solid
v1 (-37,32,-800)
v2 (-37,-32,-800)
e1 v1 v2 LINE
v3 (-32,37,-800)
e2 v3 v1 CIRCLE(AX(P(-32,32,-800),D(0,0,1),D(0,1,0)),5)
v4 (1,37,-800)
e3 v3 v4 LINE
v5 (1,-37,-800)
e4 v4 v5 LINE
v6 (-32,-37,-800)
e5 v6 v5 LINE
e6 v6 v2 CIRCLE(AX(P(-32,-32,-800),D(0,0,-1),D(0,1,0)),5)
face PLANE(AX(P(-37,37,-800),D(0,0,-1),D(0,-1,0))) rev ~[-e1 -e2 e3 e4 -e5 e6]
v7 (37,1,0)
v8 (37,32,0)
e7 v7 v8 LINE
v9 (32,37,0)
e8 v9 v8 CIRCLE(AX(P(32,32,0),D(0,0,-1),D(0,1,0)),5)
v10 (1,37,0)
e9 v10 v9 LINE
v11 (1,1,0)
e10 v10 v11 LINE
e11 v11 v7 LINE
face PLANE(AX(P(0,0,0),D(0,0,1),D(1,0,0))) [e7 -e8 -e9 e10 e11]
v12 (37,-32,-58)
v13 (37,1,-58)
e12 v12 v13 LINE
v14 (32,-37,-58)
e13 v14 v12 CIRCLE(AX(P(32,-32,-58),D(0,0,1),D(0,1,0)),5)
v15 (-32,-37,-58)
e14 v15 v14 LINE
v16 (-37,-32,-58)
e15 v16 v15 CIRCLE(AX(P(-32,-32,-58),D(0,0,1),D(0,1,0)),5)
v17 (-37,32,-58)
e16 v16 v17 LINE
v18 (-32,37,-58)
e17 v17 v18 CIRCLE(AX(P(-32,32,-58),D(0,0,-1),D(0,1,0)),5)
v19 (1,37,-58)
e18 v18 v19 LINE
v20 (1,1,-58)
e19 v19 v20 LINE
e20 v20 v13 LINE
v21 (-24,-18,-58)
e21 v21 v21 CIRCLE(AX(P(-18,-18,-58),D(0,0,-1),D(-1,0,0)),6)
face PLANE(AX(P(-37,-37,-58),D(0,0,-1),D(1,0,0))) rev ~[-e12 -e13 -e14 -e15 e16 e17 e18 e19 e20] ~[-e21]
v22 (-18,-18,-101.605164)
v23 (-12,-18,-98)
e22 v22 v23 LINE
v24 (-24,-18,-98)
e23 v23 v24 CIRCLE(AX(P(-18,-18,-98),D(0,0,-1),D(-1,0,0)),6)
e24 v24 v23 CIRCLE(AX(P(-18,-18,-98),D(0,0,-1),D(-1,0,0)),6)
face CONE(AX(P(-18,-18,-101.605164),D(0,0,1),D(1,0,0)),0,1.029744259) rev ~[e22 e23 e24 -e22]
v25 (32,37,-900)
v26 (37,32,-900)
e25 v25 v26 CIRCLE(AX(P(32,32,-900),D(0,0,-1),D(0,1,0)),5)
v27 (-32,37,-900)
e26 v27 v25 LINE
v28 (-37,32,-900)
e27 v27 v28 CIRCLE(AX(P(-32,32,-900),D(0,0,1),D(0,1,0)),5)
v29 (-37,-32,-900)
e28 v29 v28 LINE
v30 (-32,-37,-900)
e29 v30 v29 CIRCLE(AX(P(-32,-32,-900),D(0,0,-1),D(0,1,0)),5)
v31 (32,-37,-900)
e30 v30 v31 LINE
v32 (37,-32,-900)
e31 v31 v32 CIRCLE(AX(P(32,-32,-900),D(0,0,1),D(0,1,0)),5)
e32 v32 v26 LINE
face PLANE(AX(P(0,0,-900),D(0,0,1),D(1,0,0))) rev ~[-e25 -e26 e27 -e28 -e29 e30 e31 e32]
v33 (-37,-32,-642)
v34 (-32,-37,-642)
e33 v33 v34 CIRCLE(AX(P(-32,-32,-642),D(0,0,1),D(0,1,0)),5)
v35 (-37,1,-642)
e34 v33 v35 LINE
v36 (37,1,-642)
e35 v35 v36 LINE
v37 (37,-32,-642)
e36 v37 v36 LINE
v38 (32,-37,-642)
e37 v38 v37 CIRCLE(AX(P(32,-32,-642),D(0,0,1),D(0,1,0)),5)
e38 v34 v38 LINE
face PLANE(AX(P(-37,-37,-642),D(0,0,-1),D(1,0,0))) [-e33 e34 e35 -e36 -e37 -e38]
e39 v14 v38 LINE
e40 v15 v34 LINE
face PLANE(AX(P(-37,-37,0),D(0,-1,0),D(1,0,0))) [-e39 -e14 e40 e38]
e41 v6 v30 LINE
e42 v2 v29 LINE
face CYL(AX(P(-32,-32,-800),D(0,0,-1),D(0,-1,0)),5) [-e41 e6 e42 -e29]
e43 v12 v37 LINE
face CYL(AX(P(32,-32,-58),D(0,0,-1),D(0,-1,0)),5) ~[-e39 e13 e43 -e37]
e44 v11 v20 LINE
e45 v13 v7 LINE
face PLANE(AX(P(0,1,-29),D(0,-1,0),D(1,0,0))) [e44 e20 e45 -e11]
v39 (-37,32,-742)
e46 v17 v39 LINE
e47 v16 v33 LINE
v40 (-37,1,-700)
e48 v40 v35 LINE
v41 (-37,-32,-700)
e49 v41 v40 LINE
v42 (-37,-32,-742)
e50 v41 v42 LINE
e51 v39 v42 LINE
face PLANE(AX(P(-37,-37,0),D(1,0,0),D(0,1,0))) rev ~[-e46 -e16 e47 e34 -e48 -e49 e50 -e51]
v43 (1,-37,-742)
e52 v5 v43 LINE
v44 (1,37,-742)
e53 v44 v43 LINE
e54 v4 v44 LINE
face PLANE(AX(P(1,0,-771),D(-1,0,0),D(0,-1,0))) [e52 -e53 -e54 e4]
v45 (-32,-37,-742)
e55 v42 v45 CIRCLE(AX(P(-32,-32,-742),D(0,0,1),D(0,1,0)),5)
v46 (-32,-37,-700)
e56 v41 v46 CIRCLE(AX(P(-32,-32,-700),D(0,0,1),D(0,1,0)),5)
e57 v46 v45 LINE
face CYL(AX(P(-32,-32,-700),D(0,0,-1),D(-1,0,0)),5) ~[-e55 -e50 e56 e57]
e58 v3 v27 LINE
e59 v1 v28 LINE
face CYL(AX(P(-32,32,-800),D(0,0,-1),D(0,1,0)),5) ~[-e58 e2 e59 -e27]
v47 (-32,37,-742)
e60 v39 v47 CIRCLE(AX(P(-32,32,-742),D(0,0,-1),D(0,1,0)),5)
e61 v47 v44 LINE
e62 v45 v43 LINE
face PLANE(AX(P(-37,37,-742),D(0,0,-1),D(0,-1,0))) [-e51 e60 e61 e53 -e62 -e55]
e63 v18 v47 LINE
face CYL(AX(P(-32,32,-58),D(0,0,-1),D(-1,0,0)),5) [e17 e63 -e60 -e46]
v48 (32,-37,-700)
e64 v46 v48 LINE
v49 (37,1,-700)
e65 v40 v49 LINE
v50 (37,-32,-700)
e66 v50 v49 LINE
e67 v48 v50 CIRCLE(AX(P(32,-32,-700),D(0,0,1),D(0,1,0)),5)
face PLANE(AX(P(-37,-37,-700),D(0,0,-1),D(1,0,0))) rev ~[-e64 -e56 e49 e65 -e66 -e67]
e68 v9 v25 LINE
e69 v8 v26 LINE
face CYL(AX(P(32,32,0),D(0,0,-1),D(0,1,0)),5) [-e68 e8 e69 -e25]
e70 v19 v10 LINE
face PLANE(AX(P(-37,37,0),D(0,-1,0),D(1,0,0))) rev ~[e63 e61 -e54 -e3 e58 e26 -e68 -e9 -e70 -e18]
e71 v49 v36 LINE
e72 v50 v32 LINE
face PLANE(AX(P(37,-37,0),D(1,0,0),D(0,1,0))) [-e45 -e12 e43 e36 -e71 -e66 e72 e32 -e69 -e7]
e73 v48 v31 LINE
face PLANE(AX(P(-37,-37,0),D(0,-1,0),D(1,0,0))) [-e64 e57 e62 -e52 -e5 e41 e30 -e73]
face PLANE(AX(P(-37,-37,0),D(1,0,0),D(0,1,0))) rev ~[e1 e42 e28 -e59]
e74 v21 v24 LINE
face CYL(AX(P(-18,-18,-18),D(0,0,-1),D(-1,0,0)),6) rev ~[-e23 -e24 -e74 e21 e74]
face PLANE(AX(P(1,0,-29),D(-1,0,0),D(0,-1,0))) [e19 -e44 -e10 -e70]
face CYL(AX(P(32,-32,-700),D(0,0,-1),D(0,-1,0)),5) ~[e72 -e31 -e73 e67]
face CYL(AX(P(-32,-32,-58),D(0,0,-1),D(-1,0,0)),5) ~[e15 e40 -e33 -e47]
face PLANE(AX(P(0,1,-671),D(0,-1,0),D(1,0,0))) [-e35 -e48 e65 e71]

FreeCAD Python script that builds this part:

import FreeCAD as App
import Part
import Sketcher
from FreeCAD import Vector
Q = App.Units.Quantity


def edges_at(feature, points):
    """Names of the edges that pass closest to the given points."""
    edges = feature.Shape.Edges
    near = lambda p: min(range(len(edges)), key=lambda i: edges[i].distToShape(Part.Vertex(*p))[0])
    return sorted({f"Edge{near(p) + 1}" for p in points})


def add_polygon(sketch, points):
    """Adds a closed chain of lines whose ends are joined by coincident constraints."""
    first, n = sketch.GeometryCount, len(points)
    for a, b in zip(points, points[1:] + points[:1]):
        sketch.addGeometry(Part.LineSegment(App.Vector(*a, 0), App.Vector(*b, 0)), False)
    for i in range(n):
        sketch.addConstraint(Sketcher.Constraint("Coincident", first + i, 2, first + (i + 1) % n, 1))

doc = App.newDocument("Part")
body = doc.addObject("PartDesign::Body", "Body")

sketch1 = doc.addObject("Sketcher::SketchObject", "Sketch")
body.addObject(sketch1)
sketch1.AttachmentSupport = (doc.XY_Plane, [""])
sketch1.MapMode = "FlatFace"
add_polygon(sketch1, [(-37, 37), (-37, -37), (37, -37), (37, 37)])
sketch1.addConstraint(Sketcher.Constraint("Vertical", 0))
sketch1.addConstraint(Sketcher.Constraint("Horizontal", 1))
sketch1.addConstraint(Sketcher.Constraint("Vertical", 2))
sketch1.addConstraint(Sketcher.Constraint("Horizontal", 3))
sketch1.addConstraint(Sketcher.Constraint("Symmetric", 0, 2, 2, 2, -1, 1))
sketch1.addConstraint(Sketcher.Constraint("Equal", 3, 0))
sketch1.addConstraint(Sketcher.Constraint("DistanceX", 1, 1, 1, 2, Q("74 mm")))
pad1 = doc.addObject("PartDesign::Pad", "Pad")
body.addObject(pad1)
pad1.Profile = sketch1
pad1.Length = 900
pad1.Reversed = True

sketch2 = doc.addObject("Sketcher::SketchObject", "Sketch001")
body.addObject(sketch2)
sketch2.AttachmentSupport = (doc.XZ_Plane, [""])
sketch2.MapMode = "FlatFace"
sketch2.AttachmentOffset = App.Placement(Vector(0, 0, 37), App.Rotation())
add_polygon(sketch2, [(-37, 0), (-37, -58), (37, -58), (37, 0)])
sketch2.addConstraint(Sketcher.Constraint("Vertical", 0))
sketch2.addConstraint(Sketcher.Constraint("Horizontal", 1))
sketch2.addConstraint(Sketcher.Constraint("Vertical", 2))
sketch2.addConstraint(Sketcher.Constraint("Horizontal", 3))
sketch2.addConstraint(Sketcher.Constraint("Symmetric", 2, 2, 3, 2, -1, 1))
sketch2.addConstraint(Sketcher.Constraint("DistanceX", 1, 1, 1, 2, Q("74 mm")))
sketch2.addConstraint(Sketcher.Constraint("DistanceY", 0, 2, 0, 1, Q("58 mm")))
pocket1 = doc.addObject("PartDesign::Pocket", "Pocket")
body.addObject(pocket1)
pocket1.Profile = sketch2
pocket1.Length = 38

sketch3 = doc.addObject("Sketcher::SketchObject", "Sketch002")
body.addObject(sketch3)
sketch3.AttachmentSupport = (doc.YZ_Plane, [""])
sketch3.MapMode = "FlatFace"
sketch3.AttachmentOffset = App.Placement(Vector(0, 0, -37), App.Rotation())
add_polygon(sketch3, [(37, 0), (37, -58), (-37, -58), (-37, 0)])
sketch3.addConstraint(Sketcher.Constraint("Vertical", 0))
sketch3.addConstraint(Sketcher.Constraint("Horizontal", 1))
sketch3.addConstraint(Sketcher.Constraint("Vertical", 2))
sketch3.addConstraint(Sketcher.Constraint("Horizontal", 3))
sketch3.addConstraint(Sketcher.Constraint("Symmetric", 2, 2, 3, 2, -1, 1))
sketch3.addConstraint(Sketcher.Constraint("DistanceX", 1, 2, 1, 1, Q("74 mm")))
sketch3.addConstraint(Sketcher.Constraint("DistanceY", 0, 2, 0, 1, Q("58 mm")))
pocket2 = doc.addObject("PartDesign::Pocket", "Pocket001")
body.addObject(pocket2)
pocket2.Profile = sketch3
pocket2.Length = 38
pocket2.Reversed = True

sketch4 = doc.addObject("Sketcher::SketchObject", "Sketch003")
body.addObject(sketch4)
sketch4.AttachmentSupport = (doc.XY_Plane, [""])
sketch4.MapMode = "FlatFace"
sketch4.AttachmentOffset = App.Placement(Vector(0, 0, -58), App.Rotation())
sketch4.addGeometry(Part.Circle(Vector(-18, -18, 0), Vector(0, 0, 1), 6), False)
sketch4.addConstraint(Sketcher.Constraint("Diameter", 0, Q("12 mm")))
sketch4.addConstraint(Sketcher.Constraint("DistanceX", 0, 3, -1, 1, Q("18 mm")))
sketch4.addConstraint(Sketcher.Constraint("DistanceY", 0, 3, -1, 1, Q("18 mm")))
doc.recompute()
hole = doc.addObject("PartDesign::Hole", "Hole")
body.addObject(hole)
hole.Profile = sketch4
hole.ThreadType = "None"
hole.Diameter = 12
hole.DepthType = "Dimension"
hole.Depth = 40
hole.DrillPoint = "Angled"
hole.DrillPointAngle = 118

sketch5 = doc.addObject("Sketcher::SketchObject", "Sketch004")
body.addObject(sketch5)
sketch5.AttachmentSupport = (doc.YZ_Plane, [""])
sketch5.MapMode = "FlatFace"
sketch5.AttachmentOffset = App.Placement(Vector(0, 0, -37), App.Rotation())
add_polygon(sketch5, [(37, -742), (37, -800), (-37, -800), (-37, -742)])
sketch5.addConstraint(Sketcher.Constraint("Vertical", 0))
sketch5.addConstraint(Sketcher.Constraint("Horizontal", 1))
sketch5.addConstraint(Sketcher.Constraint("Vertical", 2))
sketch5.addConstraint(Sketcher.Constraint("Horizontal", 3))
sketch5.addConstraint(Sketcher.Constraint("DistanceX", 1, 2, 1, 1, Q("74 mm")))
sketch5.addConstraint(Sketcher.Constraint("DistanceY", 0, 2, 0, 1, Q("58 mm")))
sketch5.addConstraint(Sketcher.Constraint("DistanceX", -1, 1, 0, 2, Q("37 mm")))
sketch5.addConstraint(Sketcher.Constraint("DistanceY", 0, 2, -1, 1, Q("800 mm")))
pocket3 = doc.addObject("PartDesign::Pocket", "Pocket002")
body.addObject(pocket3)
pocket3.Profile = sketch5
pocket3.Length = 38
pocket3.Reversed = True

sketch6 = doc.addObject("Sketcher::SketchObject", "Sketch005")
body.addObject(sketch6)
sketch6.AttachmentSupport = (doc.XZ_Plane, [""])
sketch6.MapMode = "FlatFace"
sketch6.AttachmentOffset = App.Placement(Vector(0, 0, 37), App.Rotation())
add_polygon(sketch6, [(-37, -642), (-37, -700), (37, -700), (37, -642)])
sketch6.addConstraint(Sketcher.Constraint("Vertical", 0))
sketch6.addConstraint(Sketcher.Constraint("Horizontal", 1))
sketch6.addConstraint(Sketcher.Constraint("Vertical", 2))
sketch6.addConstraint(Sketcher.Constraint("Horizontal", 3))
sketch6.addConstraint(Sketcher.Constraint("DistanceX", 1, 1, 1, 2, Q("74 mm")))
sketch6.addConstraint(Sketcher.Constraint("DistanceY", 0, 2, 0, 1, Q("58 mm")))
sketch6.addConstraint(Sketcher.Constraint("DistanceX", 0, 2, -1, 1, Q("37 mm")))
sketch6.addConstraint(Sketcher.Constraint("DistanceY", 0, 2, -1, 1, Q("700 mm")))
pocket4 = doc.addObject("PartDesign::Pocket", "Pocket003")
body.addObject(pocket4)
pocket4.Profile = sketch6
pocket4.Length = 38
doc.recompute()

fillet = doc.addObject("PartDesign::Fillet", "Fillet")
body.addObject(fillet)
fillet.Base = (pocket4, edges_at(pocket4, [
    (-37, -37, -850),
    (-37, -37, -721),
    (-37, -37, -350),
    (-37, 37, -400),
    (-37, 37, -850),
    (37, -37, -800),
    (37, -37, -350),
    (37, 37, -450),
]))
fillet.Radius = 5

doc.recompute()
